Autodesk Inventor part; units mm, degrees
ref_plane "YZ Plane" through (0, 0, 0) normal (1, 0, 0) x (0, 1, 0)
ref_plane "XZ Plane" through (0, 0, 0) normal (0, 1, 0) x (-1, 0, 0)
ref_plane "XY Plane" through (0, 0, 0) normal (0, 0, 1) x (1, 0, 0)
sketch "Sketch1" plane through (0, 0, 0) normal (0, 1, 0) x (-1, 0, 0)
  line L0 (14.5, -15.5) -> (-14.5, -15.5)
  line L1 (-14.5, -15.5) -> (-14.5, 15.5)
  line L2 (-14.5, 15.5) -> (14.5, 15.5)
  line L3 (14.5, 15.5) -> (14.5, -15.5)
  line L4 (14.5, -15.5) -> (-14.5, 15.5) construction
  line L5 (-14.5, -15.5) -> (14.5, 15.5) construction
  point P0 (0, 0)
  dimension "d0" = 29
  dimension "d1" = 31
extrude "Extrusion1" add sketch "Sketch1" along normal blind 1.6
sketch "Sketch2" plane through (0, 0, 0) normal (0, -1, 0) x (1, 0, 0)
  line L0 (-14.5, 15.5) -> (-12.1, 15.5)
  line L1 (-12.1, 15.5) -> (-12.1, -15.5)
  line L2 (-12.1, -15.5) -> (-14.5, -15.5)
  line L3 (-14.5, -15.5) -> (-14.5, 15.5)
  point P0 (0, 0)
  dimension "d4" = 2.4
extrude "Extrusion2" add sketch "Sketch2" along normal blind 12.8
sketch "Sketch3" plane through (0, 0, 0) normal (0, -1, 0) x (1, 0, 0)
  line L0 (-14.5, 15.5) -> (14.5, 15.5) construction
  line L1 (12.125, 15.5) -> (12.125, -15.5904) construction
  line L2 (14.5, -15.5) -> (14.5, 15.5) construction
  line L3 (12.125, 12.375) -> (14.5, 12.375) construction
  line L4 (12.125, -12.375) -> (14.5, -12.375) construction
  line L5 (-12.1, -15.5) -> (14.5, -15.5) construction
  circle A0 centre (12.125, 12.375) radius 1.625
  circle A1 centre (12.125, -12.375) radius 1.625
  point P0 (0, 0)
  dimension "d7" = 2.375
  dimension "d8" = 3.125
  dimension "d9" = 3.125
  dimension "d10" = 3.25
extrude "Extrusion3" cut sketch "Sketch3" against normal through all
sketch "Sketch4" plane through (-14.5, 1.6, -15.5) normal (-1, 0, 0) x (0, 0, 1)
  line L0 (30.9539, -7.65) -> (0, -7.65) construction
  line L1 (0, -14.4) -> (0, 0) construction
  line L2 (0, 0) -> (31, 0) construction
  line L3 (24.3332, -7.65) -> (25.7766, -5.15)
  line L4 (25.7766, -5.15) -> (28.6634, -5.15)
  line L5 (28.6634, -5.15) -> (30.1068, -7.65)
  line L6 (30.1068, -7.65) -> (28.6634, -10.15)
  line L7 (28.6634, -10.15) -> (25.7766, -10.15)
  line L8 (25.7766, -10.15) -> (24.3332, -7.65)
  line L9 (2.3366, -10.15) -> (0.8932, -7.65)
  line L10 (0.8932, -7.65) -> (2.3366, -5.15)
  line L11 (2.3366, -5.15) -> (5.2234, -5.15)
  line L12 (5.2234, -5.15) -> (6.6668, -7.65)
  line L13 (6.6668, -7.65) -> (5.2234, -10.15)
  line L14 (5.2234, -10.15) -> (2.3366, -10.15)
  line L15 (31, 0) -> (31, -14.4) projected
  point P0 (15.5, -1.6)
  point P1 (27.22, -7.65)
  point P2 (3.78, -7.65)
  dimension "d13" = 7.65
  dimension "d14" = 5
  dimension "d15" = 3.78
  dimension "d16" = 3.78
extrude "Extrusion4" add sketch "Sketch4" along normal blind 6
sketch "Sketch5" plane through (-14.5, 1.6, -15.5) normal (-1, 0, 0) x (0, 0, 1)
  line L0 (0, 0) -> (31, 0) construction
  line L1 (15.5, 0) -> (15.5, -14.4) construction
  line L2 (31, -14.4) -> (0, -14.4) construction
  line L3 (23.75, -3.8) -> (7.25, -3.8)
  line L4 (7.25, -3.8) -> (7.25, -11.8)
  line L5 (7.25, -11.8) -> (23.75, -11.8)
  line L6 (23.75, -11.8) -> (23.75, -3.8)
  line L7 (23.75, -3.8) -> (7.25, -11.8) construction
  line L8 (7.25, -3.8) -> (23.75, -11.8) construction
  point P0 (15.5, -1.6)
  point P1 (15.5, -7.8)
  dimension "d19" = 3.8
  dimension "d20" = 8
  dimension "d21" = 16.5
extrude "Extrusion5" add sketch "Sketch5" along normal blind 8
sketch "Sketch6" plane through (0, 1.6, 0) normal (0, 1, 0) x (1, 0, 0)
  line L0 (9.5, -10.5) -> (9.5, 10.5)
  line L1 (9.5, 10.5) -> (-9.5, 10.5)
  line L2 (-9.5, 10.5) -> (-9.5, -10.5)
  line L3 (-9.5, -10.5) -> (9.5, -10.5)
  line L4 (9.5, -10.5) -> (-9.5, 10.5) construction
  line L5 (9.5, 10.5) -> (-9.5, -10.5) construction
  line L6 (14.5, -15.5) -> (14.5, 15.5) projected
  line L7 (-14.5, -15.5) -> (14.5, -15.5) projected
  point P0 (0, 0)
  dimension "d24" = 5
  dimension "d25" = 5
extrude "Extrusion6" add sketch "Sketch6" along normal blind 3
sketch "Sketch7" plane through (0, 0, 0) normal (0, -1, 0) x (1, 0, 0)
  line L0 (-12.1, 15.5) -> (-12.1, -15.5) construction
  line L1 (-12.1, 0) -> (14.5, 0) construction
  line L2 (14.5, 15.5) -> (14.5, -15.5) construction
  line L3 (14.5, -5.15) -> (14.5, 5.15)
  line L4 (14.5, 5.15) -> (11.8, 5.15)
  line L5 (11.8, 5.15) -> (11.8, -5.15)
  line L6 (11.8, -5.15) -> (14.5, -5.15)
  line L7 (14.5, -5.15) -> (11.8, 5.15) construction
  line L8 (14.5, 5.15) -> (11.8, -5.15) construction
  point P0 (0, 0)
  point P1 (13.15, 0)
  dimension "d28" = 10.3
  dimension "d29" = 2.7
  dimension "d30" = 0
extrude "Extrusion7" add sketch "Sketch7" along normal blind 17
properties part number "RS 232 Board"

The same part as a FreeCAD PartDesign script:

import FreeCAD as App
import Part
import Sketcher
from FreeCAD import Vector
Q = App.Units.Quantity


def add_polygon(sketch, points):
    """Adds a closed chain of lines whose ends are joined by coincident constraints."""
    first, n = sketch.GeometryCount, len(points)
    for a, b in zip(points, points[1:] + points[:1]):
        sketch.addGeometry(Part.LineSegment(App.Vector(*a, 0), App.Vector(*b, 0)), False)
    for i in range(n):
        sketch.addConstraint(Sketcher.Constraint("Coincident", first + i, 2, first + (i + 1) % n, 1))

doc = App.newDocument("Part")
params = doc.addObject("Spreadsheet::Sheet", "Params")
for row, (alias, value) in enumerate([
    ("sketch1_width", "29 mm"),
    ("sketch1_height", "31 mm"),
    ("pad1_length", "1.6 mm"),
    ("sketch2_width", "2.4 mm"),
    ("sketch2_height", "31 mm"),
    ("pad2_length", "12.8 mm"),
    ("sketch3_diameter", "3.25 mm"),
    ("pad3_length", "6 mm"),
    ("sketch5_width", "8 mm"),
    ("sketch5_height", "16.5 mm"),
    ("pad4_length", "8 mm"),
    ("sketch6_width", "19 mm"),
    ("sketch6_height", "21 mm"),
    ("pad5_length", "3 mm"),
    ("sketch7_width", "2.7 mm"),
    ("sketch7_height", "10.3 mm"),
    ("pad6_length", "17 mm"),
], start=1):
    params.set(f"A{row}", alias)
    params.set(f"B{row}", "=" + value)
    params.setAlias(f"B{row}", alias)

body = doc.addObject("PartDesign::Body", "Body")

sketch1 = doc.addObject("Sketcher::SketchObject", "Sketch")
body.addObject(sketch1)
sketch1.AttachmentSupport = (doc.XZ_Plane, [""])
sketch1.MapMode = "FlatFace"
add_polygon(sketch1, [(14, -16), (-14, -16), (-14, 16), (14, 16)])
sketch1.addConstraint(Sketcher.Constraint("Horizontal", 0))
sketch1.addConstraint(Sketcher.Constraint("Vertical", 1))
sketch1.addConstraint(Sketcher.Constraint("Horizontal", 2))
sketch1.addConstraint(Sketcher.Constraint("Vertical", 3))
sketch1.addConstraint(Sketcher.Constraint("Symmetric", 0, 2, 2, 2, -1, 1))
sketch1.addConstraint(Sketcher.Constraint("DistanceX", 0, 2, 0, 1, 29.0))
sketch1.addConstraint(Sketcher.Constraint("DistanceY", 1, 1, 1, 2, 31.0))
sketch1.setExpression("Constraints[9]", "Params.sketch1_width")
sketch1.setExpression("Constraints[10]", "Params.sketch1_height")
pad1 = doc.addObject("PartDesign::Pad", "Pad")
body.addObject(pad1)
pad1.Profile = sketch1
pad1.setExpression("Length", "Params.pad1_length")
pad1.Reversed = True

sketch2 = doc.addObject("Sketcher::SketchObject", "Sketch001")
body.addObject(sketch2)
sketch2.AttachmentSupport = (doc.XZ_Plane, [""])
sketch2.MapMode = "FlatFace"
add_polygon(sketch2, [(-12.1, 15.5), (-14.5, 15.5), (-14.5, -15.5), (-12.1, -15.5)])
sketch2.addConstraint(Sketcher.Constraint("Horizontal", 0))
sketch2.addConstraint(Sketcher.Constraint("Vertical", 1))
sketch2.addConstraint(Sketcher.Constraint("Horizontal", 2))
sketch2.addConstraint(Sketcher.Constraint("Vertical", 3))
sketch2.addConstraint(Sketcher.Constraint("DistanceX", 0, 2, 0, 1, 2.4))
sketch2.addConstraint(Sketcher.Constraint("DistanceY", 1, 2, 1, 1, 31.0))
sketch2.addConstraint(Sketcher.Constraint("DistanceX", 0, 2, -1, 1, 14.5))
sketch2.addConstraint(Sketcher.Constraint("DistanceY", -1, 1, 0, 2, 15.5))
sketch2.setExpression("Constraints[8]", "Params.sketch2_width")
sketch2.setExpression("Constraints[9]", "Params.sketch2_height")
pad2 = doc.addObject("PartDesign::Pad", "Pad001")
body.addObject(pad2)
pad2.Profile = sketch2
pad2.setExpression("Length", "Params.pad2_length")

sketch3 = doc.addObject("Sketcher::SketchObject", "Sketch002")
body.addObject(sketch3)
sketch3.AttachmentSupport = (doc.XZ_Plane, [""])
sketch3.MapMode = "FlatFace"
sketch3.addGeometry(Part.Circle(Vector(12.1, 12.4, 0), Vector(0, 0, 1), 1.6), False)
sketch3.addGeometry(Part.Circle(Vector(12.1, -12.4, 0), Vector(0, 0, 1), 1.6), False)
sketch3.addConstraint(Sketcher.Constraint("Equal", 0, 1))
sketch3.addConstraint(Sketcher.Constraint("Symmetric", 0, 3, 1, 3, -1))
sketch3.addConstraint(Sketcher.Constraint("Diameter", 0, 3.25))
sketch3.addConstraint(Sketcher.Constraint("DistanceY", 1, 3, 0, 3, 24.75))
sketch3.addConstraint(Sketcher.Constraint("DistanceX", -1, 1, 0, 3, 12.125))
sketch3.setExpression("Constraints[2]", "Params.sketch3_diameter")
pocket1 = doc.addObject("PartDesign::Pocket", "Pocket")
body.addObject(pocket1)
pocket1.Profile = sketch3
pocket1.Type = "ThroughAll"

sketch4 = doc.addObject("Sketcher::SketchObject", "Sketch003")
body.addObject(sketch4)
sketch4.AttachmentSupport = (doc.YZ_Plane, [""])
sketch4.MapMode = "FlatFace"
sketch4.AttachmentOffset = App.Placement(Vector(0, 0, -14.5), App.Rotation())
add_polygon(sketch4, [(-3.5, 10.3), (-6, 8.8), (-8.6, 10.3), (-8.6, 13.2), (-6, 14.6), (-3.5, 13.2)])
add_polygon(sketch4, [(-6, -14.6), (-8.6, -13.2), (-8.6, -10.3), (-6, -8.8), (-3.5, -10.3), (-3.5, -13.2)])
sketch4.addConstraint(Sketcher.Constraint("Vertical", 2))
sketch4.addConstraint(Sketcher.Constraint("Vertical", 5))
sketch4.addConstraint(Sketcher.Constraint("Vertical", 7))
sketch4.addConstraint(Sketcher.Constraint("Vertical", 10))
sketch4.addConstraint(Sketcher.Constraint("Symmetric", 2, 2, 6, 2, -1))
sketch4.addConstraint(Sketcher.Constraint("Symmetric", 0, 2, 8, 2, -1))
sketch4.addConstraint(Sketcher.Constraint("Symmetric", 5, 2, 9, 2, -1))
sketch4.addConstraint(Sketcher.Constraint("Symmetric", 3, 2, 11, 2, -1))
sketch4.addConstraint(Sketcher.Constraint("Parallel", 0, 3))
sketch4.addConstraint(Sketcher.Constraint("Parallel", 1, 4))
sketch4.addConstraint(Sketcher.Constraint("Parallel", 4, 6))
sketch4.addConstraint(Sketcher.Constraint("Parallel", 3, 8))
sketch4.addConstraint(Sketcher.Constraint("Parallel", 8, 11))
sketch4.addConstraint(Sketcher.Constraint("Horizontal", 2, 2, 4, 2))
sketch4.addConstraint(Sketcher.Constraint("Horizontal", 1, 2, 5, 2))
sketch4.addConstraint(Sketcher.Constraint("DistanceX", 2, 2, 4, 2, 5.0))
sketch4.addConstraint(Sketcher.Constraint("Angle", 0, Q("-149.9996 deg")))
sketch4.addConstraint(Sketcher.Constraint("DistanceX", 0, 2, -1, 1, 6.05))
sketch4.addConstraint(Sketcher.Constraint("DistanceY", 6, 2, 1, 2, 23.44))
sketch4.addConstraint(Sketcher.Constraint("DistanceY", 2, 1, 2, 2, 2.8868))
pad3 = doc.addObject("PartDesign::Pad", "Pad002")
body.addObject(pad3)
pad3.Profile = sketch4
pad3.setExpression("Length", "Params.pad3_length")
pad3.Reversed = True

sketch5 = doc.addObject("Sketcher::SketchObject", "Sketch004")
body.addObject(sketch5)
sketch5.AttachmentSupport = (doc.YZ_Plane, [""])
sketch5.MapMode = "FlatFace"
sketch5.AttachmentOffset = App.Placement(Vector(0, 0, -14.5), App.Rotation())
add_polygon(sketch5, [(-10, 8), (-2, 8), (-2, -8), (-10, -8)])
sketch5.addConstraint(Sketcher.Constraint("Horizontal", 0))
sketch5.addConstraint(Sketcher.Constraint("Vertical", 1))
sketch5.addConstraint(Sketcher.Constraint("Horizontal", 2))
sketch5.addConstraint(Sketcher.Constraint("Vertical", 3))
sketch5.addConstraint(Sketcher.Constraint("DistanceX", 0, 1, 0, 2, 8.0))
sketch5.addConstraint(Sketcher.Constraint("DistanceY", 1, 2, 1, 1, 16.5))
sketch5.addConstraint(Sketcher.Constraint("DistanceX", 0, 2, -1, 1, 2.2))
sketch5.addConstraint(Sketcher.Constraint("DistanceY", -1, 1, 0, 2, 8.25))
sketch5.setExpression("Constraints[8]", "Params.sketch5_width")
sketch5.setExpression("Constraints[9]", "Params.sketch5_height")
pad4 = doc.addObject("PartDesign::Pad", "Pad003")
body.addObject(pad4)
pad4.Profile = sketch5
pad4.setExpression("Length", "Params.pad4_length")
pad4.Reversed = True

sketch6 = doc.addObject("Sketcher::SketchObject", "Sketch005")
body.addObject(sketch6)
sketch6.AttachmentSupport = (doc.XZ_Plane, [""])
sketch6.MapMode = "FlatFace"
sketch6.AttachmentOffset = App.Placement(Vector(0, 0, -1.6), App.Rotation())
add_polygon(sketch6, [(-10, 10), (10, 10), (10, -10), (-10, -10)])
sketch6.addConstraint(Sketcher.Constraint("Horizontal", 0))
sketch6.addConstraint(Sketcher.Constraint("Vertical", 1))
sketch6.addConstraint(Sketcher.Constraint("Horizontal", 2))
sketch6.addConstraint(Sketcher.Constraint("Vertical", 3))
sketch6.addConstraint(Sketcher.Constraint("Symmetric", 0, 2, 2, 2, -1, 1))
sketch6.addConstraint(Sketcher.Constraint("DistanceX", 0, 1, 0, 2, 19.0))
sketch6.addConstraint(Sketcher.Constraint("DistanceY", 1, 2, 1, 1, 21.0))
sketch6.setExpression("Constraints[9]", "Params.sketch6_width")
sketch6.setExpression("Constraints[10]", "Params.sketch6_height")
pad5 = doc.addObject("PartDesign::Pad", "Pad004")
body.addObject(pad5)
pad5.Profile = sketch6
pad5.setExpression("Length", "Params.pad5_length")
pad5.Reversed = True

sketch7 = doc.addObject("Sketcher::SketchObject", "Sketch006")
body.addObject(sketch7)
sketch7.AttachmentSupport = (doc.XZ_Plane, [""])
sketch7.MapMode = "FlatFace"
add_polygon(sketch7, [(11.8, -5.2), (14.5, -5.2), (14.5, 5.2), (11.8, 5.2)])
sketch7.addConstraint(Sketcher.Constraint("Horizontal", 0))
sketch7.addConstraint(Sketcher.Constraint("Vertical", 1))
sketch7.addConstraint(Sketcher.Constraint("Horizontal", 2))
sketch7.addConstraint(Sketcher.Constraint("Vertical", 3))
sketch7.addConstraint(Sketcher.Constraint("DistanceX", 0, 1, 0, 2, 2.7))
sketch7.addConstraint(Sketcher.Constraint("DistanceY", 1, 1, 1, 2, 10.3))
sketch7.addConstraint(Sketcher.Constraint("DistanceX", -1, 1, 0, 2, 14.5))
sketch7.addConstraint(Sketcher.Constraint("DistanceY", 0, 2, -1, 1, 5.15))
sketch7.setExpression("Constraints[8]", "Params.sketch7_width")
sketch7.setExpression("Constraints[9]", "Params.sketch7_height")
pad6 = doc.addObject("PartDesign::Pad", "Pad005")
body.addObject(pad6)
pad6.Profile = sketch7
pad6.setExpression("Length", "Params.pad6_length")

doc.recompute()
